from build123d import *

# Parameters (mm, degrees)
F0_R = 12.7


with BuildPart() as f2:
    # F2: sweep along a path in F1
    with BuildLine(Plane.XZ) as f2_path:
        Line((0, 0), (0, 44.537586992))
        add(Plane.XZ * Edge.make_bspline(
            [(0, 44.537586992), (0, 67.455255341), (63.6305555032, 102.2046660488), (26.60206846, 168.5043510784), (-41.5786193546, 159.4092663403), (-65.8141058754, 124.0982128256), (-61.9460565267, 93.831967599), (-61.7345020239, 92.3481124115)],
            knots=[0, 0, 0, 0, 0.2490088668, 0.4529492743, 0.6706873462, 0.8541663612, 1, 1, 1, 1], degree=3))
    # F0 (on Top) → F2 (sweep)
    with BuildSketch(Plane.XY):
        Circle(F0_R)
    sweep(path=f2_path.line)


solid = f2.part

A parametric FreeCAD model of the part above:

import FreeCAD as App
import Part
import Sketcher

V = App.Vector
Q = App.Units.Quantity

doc = App.newDocument("Part")
body = doc.addObject("PartDesign::Body", "Body")

# Sketch on XY plane
sketch1 = body.newObject("Sketcher::SketchObject", "Sketch")
sketch1.AttachmentSupport = (doc.getObject("XY_Plane"), [""])
sketch1.MapMode = "FlatFace"
sketch1.addGeometry(Part.Circle(V(0, 0, 0), V(0, 0, 1), 13), False)
sketch1.addConstraint(Sketcher.Constraint("Coincident", 0, 3, -1, 1))
sketch1.addConstraint(Sketcher.Constraint("Diameter", 0, Q("1 in")))

# Sketch on XZ plane
sketch2 = body.newObject("Sketcher::SketchObject", "Sketch001")
sketch2.AttachmentSupport = (doc.getObject("XZ_Plane"), [""])
sketch2.MapMode = "FlatFace"
sketch2.addGeometry(Part.LineSegment(V(0, 0, 0), V(0, 44.537587, 0)), False)
sketch2.addGeometry(Part.BSplineCurve([V(0, 44.537587, 0), V(0, 67.455255, 0), V(63.630556, 102.204666, 0), V(26.602068, 168.504351, 0), V(-41.578619, 159.409266, 0), V(-65.814106, 124.098213, 0), V(-61.946057, 93.831968, 0), V(-61.734502, 92.348112, 0)], [4, 1, 1, 1, 1, 4], [0, 0.249008867, 0.452949274, 0.670687346, 0.854166361, 1], False, 3, [1, 1, 1, 1, 1, 1, 1, 1], False), False)
sketch2.addConstraint(Sketcher.Constraint("Block", 1))
sketch2.addConstraint(Sketcher.Constraint("Coincident", 0, 2, 1, 1))
sketch2.addConstraint(Sketcher.Constraint("Vertical", 0))
sketch2.addConstraint(Sketcher.Constraint("DistanceY", 0, 1, 0, 2, 44.537587))
doc.recompute()

additivepipe = body.newObject("PartDesign::AdditivePipe", "AdditivePipe")
additivepipe.Profile = sketch1
additivepipe.Spine = (sketch2, ["Edge1", "Edge2"])

doc.recompute()
